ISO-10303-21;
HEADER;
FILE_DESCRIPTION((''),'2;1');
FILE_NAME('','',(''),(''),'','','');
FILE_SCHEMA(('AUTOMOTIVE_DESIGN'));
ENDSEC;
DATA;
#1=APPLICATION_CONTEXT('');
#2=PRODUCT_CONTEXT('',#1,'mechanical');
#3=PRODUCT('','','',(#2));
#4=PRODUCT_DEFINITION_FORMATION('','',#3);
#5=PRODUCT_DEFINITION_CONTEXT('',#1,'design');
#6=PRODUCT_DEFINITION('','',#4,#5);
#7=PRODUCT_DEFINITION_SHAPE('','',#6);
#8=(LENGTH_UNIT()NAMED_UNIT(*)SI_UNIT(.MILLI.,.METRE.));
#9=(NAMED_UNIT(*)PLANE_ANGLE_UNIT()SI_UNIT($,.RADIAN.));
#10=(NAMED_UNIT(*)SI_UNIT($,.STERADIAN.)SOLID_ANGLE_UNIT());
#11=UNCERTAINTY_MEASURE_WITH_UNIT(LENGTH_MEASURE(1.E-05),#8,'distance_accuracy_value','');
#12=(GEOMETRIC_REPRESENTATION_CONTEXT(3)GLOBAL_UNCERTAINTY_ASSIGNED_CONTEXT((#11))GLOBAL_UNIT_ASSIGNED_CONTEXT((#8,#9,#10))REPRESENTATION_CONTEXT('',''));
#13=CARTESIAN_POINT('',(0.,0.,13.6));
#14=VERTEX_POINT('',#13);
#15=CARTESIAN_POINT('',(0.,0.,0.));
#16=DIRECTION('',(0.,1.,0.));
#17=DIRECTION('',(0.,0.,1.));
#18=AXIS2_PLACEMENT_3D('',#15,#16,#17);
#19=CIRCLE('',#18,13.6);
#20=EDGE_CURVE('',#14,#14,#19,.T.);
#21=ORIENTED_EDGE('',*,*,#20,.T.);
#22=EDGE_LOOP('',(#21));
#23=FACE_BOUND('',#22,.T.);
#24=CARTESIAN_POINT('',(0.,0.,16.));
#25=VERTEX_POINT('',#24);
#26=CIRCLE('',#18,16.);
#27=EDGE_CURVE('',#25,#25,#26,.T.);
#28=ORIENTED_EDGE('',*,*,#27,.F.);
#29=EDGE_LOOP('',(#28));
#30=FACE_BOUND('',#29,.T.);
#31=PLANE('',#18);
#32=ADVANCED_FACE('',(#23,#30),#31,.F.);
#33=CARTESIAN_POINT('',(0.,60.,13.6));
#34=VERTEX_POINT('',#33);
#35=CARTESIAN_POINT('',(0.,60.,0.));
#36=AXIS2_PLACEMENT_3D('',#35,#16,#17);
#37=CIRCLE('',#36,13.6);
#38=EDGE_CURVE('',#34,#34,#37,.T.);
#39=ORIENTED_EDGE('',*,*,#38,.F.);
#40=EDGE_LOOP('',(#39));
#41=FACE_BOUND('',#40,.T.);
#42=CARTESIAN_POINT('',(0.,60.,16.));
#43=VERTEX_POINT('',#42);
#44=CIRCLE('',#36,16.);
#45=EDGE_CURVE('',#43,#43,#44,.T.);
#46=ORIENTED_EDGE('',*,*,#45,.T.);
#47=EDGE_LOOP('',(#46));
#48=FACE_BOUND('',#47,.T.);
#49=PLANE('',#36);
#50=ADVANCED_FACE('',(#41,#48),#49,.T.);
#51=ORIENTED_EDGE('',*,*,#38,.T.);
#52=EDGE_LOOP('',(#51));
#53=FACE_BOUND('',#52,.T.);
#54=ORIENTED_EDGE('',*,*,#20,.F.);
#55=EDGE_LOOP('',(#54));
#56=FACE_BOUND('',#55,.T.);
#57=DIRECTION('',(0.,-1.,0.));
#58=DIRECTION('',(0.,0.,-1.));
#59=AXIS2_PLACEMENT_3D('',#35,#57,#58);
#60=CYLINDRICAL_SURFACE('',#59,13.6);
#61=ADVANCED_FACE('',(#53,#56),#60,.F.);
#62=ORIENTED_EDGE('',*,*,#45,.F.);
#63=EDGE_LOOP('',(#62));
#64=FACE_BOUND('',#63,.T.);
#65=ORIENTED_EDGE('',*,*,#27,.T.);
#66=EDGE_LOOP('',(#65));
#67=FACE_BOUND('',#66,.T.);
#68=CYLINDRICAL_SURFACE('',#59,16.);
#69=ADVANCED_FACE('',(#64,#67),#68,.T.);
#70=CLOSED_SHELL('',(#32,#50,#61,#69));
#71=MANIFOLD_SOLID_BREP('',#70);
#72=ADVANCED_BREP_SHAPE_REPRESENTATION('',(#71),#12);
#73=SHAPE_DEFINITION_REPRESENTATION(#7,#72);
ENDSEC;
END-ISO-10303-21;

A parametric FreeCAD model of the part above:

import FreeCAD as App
import Part
import Sketcher
from FreeCAD import Vector

doc = App.newDocument("Part")
body = doc.addObject("PartDesign::Body", "Body")

# Sketch on XZ plane
sketch1 = doc.addObject("Sketcher::SketchObject", "Sketch")
body.addObject(sketch1)
sketch1.AttachmentSupport = (doc.XZ_Plane, [""])
sketch1.MapMode = "FlatFace"
sketch1.addGeometry([
    Part.Circle(Vector(0, 0, 0), Vector(0, 0, 1), 16),
    Part.Circle(Vector(0, 0, 0), Vector(0, 0, 1), 13.6),
], False)
sketch1.addConstraint([
    Sketcher.Constraint("Coincident", 0, 3, -1, 1),
    Sketcher.Constraint("Coincident", 1, 3, -1, 1),
    Sketcher.Constraint("Diameter", 0, 32.0),
    Sketcher.Constraint("Diameter", 1, 27.2),
])
pad1 = doc.addObject("PartDesign::Pad", "Pad")
body.addObject(pad1)
pad1.Profile = sketch1
pad1.Length = 60
pad1.Reversed = True

doc.recompute()
